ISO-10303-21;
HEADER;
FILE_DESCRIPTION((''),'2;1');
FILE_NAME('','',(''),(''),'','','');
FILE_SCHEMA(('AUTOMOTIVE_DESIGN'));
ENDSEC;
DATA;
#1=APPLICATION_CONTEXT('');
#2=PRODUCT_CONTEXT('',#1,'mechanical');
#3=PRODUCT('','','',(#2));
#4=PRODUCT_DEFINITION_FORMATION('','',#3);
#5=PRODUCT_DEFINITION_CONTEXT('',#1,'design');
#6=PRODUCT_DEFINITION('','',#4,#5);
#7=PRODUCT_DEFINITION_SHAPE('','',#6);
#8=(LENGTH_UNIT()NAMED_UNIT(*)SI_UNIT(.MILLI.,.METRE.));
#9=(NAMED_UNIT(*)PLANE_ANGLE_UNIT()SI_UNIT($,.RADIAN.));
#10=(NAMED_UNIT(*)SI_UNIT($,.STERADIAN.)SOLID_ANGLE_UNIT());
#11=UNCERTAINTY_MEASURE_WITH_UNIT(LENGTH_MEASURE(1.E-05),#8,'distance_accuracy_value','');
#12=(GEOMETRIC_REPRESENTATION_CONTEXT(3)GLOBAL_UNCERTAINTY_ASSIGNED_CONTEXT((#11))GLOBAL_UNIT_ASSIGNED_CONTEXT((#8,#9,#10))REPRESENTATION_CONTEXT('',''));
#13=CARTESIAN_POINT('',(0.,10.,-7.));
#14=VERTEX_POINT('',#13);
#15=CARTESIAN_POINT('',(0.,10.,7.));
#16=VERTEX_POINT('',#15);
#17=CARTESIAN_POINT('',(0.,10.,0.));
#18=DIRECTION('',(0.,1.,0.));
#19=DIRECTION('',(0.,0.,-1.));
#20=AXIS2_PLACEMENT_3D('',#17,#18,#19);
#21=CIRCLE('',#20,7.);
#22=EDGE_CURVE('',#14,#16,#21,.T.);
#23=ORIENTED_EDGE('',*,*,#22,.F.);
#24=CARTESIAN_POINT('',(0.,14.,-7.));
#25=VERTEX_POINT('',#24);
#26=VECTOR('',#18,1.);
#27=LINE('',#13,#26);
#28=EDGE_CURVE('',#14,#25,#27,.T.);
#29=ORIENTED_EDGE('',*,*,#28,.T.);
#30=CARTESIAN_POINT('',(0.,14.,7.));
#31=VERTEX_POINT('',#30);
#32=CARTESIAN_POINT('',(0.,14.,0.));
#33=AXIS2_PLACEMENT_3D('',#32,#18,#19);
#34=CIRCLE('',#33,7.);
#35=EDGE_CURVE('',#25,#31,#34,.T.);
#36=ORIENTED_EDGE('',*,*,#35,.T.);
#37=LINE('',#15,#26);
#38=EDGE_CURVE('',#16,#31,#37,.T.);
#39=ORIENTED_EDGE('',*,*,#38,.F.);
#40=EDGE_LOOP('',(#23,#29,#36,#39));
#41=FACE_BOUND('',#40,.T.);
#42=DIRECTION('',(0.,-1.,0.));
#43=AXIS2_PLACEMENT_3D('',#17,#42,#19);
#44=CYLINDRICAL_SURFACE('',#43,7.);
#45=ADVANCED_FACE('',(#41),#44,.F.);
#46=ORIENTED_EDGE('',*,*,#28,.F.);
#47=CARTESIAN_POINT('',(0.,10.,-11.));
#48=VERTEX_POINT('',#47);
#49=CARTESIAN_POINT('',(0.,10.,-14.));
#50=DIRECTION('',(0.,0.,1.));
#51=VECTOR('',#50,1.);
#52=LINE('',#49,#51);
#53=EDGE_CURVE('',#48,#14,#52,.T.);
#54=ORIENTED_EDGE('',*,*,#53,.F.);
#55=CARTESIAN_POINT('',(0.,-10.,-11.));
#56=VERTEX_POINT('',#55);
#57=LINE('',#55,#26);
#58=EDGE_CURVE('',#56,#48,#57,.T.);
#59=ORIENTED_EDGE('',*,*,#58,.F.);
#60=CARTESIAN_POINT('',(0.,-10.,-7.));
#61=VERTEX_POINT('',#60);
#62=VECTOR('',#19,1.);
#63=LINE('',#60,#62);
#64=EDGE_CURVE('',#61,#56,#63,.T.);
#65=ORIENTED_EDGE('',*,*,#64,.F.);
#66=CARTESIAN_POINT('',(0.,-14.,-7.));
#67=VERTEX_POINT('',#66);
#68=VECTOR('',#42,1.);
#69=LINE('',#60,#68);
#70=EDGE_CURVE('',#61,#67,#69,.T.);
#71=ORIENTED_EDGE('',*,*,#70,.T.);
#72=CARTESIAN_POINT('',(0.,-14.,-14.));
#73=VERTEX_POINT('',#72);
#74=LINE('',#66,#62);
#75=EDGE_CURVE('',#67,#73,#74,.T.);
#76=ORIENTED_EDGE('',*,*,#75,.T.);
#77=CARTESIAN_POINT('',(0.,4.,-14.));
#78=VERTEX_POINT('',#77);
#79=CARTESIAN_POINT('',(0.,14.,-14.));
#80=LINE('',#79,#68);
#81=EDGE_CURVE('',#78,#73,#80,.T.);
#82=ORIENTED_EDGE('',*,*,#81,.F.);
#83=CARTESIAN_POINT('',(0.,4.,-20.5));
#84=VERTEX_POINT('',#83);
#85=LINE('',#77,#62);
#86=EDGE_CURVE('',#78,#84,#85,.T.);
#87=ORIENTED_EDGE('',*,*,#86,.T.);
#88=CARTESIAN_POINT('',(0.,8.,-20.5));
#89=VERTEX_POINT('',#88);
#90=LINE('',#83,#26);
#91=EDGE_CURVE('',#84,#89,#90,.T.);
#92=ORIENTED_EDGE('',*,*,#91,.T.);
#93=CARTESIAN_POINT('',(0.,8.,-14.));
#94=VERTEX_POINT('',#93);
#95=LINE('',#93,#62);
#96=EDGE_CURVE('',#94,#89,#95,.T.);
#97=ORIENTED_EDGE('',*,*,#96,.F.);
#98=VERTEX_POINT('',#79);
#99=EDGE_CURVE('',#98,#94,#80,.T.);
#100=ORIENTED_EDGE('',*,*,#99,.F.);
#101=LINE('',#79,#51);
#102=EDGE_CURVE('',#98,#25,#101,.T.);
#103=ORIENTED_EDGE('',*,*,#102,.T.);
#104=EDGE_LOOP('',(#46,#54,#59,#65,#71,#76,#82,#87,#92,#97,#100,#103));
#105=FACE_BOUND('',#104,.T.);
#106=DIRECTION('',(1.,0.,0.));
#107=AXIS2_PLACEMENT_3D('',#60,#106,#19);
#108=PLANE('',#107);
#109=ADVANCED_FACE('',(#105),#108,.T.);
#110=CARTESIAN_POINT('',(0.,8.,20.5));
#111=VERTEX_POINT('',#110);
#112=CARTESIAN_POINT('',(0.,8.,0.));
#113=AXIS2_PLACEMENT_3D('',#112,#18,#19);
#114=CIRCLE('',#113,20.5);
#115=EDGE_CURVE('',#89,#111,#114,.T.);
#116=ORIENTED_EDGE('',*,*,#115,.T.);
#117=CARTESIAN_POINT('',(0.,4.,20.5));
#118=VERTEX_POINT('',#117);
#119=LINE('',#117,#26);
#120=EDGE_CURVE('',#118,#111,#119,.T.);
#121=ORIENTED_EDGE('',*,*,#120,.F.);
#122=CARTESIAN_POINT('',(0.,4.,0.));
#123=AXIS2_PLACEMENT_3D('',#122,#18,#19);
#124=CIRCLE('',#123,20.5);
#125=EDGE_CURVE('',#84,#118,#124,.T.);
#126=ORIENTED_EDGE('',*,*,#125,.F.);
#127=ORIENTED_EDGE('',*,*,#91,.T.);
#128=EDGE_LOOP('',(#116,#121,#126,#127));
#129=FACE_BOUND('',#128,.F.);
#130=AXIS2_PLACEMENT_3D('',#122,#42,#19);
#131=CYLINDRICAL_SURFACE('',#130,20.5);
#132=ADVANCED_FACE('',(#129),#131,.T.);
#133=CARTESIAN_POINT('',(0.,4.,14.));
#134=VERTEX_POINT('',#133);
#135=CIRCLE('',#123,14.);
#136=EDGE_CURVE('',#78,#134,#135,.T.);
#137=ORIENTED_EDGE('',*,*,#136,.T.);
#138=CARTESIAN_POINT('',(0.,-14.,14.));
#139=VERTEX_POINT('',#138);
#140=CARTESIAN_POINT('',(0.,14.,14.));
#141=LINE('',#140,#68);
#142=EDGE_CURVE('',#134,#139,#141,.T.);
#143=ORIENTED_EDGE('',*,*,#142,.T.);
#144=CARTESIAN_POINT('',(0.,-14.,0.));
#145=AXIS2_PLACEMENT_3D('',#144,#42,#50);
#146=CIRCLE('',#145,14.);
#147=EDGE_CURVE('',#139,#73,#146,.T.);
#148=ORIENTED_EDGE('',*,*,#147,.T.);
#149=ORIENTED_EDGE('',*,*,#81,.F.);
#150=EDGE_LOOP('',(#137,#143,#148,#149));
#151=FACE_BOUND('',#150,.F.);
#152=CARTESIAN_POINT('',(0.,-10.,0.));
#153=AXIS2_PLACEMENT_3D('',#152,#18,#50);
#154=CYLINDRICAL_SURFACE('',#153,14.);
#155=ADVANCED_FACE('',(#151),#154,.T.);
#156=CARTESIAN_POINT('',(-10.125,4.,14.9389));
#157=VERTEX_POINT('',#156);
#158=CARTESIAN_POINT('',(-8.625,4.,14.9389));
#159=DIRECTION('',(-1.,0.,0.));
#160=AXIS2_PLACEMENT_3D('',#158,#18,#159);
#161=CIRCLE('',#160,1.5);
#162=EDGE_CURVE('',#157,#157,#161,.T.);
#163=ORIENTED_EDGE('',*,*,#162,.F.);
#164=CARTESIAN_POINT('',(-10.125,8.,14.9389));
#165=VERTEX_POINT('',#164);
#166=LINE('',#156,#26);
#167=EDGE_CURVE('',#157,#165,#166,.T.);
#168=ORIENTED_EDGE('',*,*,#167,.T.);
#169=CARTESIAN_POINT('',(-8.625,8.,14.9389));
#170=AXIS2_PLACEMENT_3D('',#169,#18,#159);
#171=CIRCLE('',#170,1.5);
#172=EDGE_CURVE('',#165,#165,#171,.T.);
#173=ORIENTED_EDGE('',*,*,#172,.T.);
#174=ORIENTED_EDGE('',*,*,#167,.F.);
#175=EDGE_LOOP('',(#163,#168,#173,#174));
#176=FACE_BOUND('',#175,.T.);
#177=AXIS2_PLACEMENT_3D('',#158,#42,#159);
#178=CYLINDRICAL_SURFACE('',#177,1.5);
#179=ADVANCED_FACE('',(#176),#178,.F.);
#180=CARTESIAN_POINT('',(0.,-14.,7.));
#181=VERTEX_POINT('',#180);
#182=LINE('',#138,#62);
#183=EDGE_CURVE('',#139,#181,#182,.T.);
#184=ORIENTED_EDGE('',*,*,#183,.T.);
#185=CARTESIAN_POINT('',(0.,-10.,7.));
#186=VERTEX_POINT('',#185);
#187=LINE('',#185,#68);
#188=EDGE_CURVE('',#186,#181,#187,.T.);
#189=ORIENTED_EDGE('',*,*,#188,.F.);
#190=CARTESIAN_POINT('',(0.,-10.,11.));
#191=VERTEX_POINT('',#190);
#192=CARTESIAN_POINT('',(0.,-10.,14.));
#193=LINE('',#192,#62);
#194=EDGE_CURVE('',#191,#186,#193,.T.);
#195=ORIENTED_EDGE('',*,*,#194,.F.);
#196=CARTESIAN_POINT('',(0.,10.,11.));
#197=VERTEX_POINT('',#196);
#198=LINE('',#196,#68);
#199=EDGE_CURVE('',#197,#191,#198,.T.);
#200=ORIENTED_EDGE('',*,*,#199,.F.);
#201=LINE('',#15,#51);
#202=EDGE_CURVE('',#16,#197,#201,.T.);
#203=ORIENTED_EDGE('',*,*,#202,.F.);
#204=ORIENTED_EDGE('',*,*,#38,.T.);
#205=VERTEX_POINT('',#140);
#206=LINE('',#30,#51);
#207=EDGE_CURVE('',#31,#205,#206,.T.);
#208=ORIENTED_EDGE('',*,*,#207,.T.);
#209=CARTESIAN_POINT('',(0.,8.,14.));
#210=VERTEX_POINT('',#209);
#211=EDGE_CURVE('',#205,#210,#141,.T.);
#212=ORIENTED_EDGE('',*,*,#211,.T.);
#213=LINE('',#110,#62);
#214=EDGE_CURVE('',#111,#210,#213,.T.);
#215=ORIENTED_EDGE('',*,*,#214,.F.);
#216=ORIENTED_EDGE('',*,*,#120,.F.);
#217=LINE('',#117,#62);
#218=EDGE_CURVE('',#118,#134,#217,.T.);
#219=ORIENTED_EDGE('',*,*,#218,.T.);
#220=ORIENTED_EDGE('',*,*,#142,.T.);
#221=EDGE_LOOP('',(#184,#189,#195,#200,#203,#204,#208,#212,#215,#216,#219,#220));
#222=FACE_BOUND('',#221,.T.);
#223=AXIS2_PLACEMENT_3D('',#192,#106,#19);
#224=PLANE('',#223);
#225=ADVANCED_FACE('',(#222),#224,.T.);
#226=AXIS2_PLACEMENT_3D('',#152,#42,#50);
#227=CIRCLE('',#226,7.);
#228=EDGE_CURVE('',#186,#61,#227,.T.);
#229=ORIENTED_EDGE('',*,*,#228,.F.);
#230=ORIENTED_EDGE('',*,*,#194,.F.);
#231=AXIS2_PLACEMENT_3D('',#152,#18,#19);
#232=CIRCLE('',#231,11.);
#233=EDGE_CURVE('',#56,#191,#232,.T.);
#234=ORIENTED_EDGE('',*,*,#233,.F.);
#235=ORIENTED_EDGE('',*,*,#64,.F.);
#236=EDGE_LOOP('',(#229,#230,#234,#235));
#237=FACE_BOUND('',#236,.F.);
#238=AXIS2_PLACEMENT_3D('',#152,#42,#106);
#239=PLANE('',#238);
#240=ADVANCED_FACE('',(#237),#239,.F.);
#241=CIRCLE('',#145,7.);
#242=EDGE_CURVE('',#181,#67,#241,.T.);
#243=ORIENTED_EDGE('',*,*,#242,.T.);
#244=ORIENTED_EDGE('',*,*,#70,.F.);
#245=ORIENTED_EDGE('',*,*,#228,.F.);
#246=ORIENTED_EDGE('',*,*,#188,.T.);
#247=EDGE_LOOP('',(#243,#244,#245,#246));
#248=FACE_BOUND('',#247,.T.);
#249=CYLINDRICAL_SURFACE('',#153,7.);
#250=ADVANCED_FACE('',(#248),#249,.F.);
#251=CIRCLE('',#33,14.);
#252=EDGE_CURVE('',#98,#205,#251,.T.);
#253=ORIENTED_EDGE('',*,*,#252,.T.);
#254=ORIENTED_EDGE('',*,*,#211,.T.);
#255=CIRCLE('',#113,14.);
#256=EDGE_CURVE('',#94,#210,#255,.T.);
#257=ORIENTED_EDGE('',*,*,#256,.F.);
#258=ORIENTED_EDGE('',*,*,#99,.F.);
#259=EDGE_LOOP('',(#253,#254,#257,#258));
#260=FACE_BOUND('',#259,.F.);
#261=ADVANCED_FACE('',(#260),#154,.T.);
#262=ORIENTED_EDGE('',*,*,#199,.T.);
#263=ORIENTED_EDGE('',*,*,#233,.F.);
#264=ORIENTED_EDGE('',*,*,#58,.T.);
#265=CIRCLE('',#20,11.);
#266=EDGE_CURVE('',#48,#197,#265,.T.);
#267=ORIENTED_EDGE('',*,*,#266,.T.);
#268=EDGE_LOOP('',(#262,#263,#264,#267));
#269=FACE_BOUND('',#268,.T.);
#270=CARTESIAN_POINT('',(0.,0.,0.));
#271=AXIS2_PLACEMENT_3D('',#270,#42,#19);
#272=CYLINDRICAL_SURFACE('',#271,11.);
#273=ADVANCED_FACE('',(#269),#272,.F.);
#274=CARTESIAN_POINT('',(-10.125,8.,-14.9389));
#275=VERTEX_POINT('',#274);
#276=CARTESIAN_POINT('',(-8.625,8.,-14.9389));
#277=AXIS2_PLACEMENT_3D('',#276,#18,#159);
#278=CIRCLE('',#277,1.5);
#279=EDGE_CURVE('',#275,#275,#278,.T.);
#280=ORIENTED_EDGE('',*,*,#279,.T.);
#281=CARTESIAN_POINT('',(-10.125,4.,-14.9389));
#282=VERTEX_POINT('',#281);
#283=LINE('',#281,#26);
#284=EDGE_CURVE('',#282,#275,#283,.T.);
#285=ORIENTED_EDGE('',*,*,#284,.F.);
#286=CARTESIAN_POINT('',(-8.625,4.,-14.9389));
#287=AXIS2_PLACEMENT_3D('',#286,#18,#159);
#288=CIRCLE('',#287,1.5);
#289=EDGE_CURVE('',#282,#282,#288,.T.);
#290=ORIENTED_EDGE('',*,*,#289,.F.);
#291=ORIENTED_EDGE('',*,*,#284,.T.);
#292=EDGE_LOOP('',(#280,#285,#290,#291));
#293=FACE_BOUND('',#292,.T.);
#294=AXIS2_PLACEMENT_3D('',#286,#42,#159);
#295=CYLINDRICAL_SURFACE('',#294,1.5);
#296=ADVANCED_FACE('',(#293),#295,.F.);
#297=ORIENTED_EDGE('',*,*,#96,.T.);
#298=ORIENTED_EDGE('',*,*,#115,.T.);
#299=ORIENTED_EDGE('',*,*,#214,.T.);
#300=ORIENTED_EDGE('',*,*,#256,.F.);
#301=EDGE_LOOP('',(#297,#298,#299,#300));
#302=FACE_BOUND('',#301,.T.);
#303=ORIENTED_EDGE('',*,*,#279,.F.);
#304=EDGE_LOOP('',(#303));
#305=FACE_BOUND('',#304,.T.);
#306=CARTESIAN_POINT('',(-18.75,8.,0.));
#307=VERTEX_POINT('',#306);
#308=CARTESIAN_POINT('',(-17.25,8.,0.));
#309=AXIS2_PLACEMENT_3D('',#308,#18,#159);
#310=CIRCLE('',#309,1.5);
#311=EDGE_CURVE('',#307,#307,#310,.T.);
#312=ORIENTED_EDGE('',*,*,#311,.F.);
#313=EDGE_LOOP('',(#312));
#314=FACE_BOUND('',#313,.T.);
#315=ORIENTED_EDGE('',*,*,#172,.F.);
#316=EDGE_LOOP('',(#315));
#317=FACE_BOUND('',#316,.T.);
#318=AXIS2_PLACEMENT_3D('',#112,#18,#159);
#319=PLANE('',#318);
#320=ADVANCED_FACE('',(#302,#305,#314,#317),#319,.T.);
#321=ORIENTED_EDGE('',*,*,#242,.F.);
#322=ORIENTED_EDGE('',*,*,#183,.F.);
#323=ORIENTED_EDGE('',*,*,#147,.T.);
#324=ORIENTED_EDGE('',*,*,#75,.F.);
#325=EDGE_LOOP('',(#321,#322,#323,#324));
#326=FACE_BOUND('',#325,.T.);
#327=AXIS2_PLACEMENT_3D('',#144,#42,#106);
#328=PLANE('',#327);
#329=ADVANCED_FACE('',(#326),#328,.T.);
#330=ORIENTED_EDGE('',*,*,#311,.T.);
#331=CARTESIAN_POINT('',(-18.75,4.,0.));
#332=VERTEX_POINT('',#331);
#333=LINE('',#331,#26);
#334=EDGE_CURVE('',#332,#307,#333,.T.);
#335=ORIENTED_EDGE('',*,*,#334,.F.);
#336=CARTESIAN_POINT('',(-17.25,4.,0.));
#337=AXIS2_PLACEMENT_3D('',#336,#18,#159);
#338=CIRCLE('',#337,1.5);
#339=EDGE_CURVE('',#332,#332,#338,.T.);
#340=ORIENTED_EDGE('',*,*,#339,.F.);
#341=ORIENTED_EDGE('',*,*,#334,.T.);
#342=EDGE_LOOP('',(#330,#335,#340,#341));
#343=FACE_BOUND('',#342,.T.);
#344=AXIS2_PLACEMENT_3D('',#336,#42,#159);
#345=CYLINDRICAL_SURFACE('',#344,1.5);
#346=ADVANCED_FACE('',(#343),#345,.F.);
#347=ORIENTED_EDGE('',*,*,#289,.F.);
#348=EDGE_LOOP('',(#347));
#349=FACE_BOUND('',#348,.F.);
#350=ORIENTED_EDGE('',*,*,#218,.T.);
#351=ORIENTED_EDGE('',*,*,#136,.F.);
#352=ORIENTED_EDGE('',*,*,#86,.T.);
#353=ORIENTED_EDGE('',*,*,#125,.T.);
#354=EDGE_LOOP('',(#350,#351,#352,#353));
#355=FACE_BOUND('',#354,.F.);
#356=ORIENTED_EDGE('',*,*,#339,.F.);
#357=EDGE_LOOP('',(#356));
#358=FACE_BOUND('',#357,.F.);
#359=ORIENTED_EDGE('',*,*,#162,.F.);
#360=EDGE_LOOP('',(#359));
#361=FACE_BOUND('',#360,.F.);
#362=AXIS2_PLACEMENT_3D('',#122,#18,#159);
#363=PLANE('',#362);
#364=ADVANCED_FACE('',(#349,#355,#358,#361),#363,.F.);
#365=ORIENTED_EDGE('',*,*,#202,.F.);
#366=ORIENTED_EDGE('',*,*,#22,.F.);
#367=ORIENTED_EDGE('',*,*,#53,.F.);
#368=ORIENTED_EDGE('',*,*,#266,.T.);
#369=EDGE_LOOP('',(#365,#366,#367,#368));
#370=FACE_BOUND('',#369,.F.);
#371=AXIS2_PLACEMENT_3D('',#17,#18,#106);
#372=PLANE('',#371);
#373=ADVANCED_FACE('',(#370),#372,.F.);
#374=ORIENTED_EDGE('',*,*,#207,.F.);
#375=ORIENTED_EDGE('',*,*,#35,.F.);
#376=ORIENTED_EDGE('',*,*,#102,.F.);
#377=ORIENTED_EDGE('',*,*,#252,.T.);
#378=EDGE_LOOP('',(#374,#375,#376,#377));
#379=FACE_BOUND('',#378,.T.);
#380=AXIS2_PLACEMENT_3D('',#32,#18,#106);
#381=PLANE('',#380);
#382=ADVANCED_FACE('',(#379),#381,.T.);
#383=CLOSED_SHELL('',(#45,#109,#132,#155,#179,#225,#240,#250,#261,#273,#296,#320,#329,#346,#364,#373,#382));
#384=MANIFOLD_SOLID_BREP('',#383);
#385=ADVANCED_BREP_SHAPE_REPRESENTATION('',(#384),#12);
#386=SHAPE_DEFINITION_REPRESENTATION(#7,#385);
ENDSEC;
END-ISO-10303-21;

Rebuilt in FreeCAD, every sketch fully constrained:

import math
import FreeCAD as App
import Part
import Sketcher

V = App.Vector

doc = App.newDocument("Part")
body = doc.addObject("PartDesign::Body", "Body")

# Sketch on XZ plane
sketch1 = doc.addObject("Sketcher::SketchObject", "Sketch")
body.addObject(sketch1)
sketch1.AttachmentSupport = (doc.XZ_Plane, [""])
sketch1.MapMode = "FlatFace"
sketch1.addGeometry(Part.ArcOfCircle(Part.Circle(V(0, 0, 0), V(0, 0, 1), 11), math.radians(90), math.radians(270)), False)
sketch1.addGeometry(Part.LineSegment(V(0, -11, 0), V(0, -14, 0)), False)
sketch1.addGeometry(Part.ArcOfCircle(Part.Circle(V(0, 0, 0), V(0, 0, 1), 14), math.radians(90), math.radians(270)), False)
sketch1.addGeometry(Part.LineSegment(V(0, 14, 0), V(0, 11, 0)), False)
sketch1.addConstraint(Sketcher.Constraint("Coincident", 0, 2, 1, 1))
sketch1.addConstraint(Sketcher.Constraint("Coincident", 1, 2, 2, 2))
sketch1.addConstraint(Sketcher.Constraint("Coincident", 2, 1, 3, 1))
sketch1.addConstraint(Sketcher.Constraint("Coincident", 3, 2, 0, 1))
sketch1.addConstraint(Sketcher.Constraint("Vertical", 1))
sketch1.addConstraint(Sketcher.Constraint("Vertical", 3))
sketch1.addConstraint(Sketcher.Constraint("Coincident", 0, 3, -1, 1))
sketch1.addConstraint(Sketcher.Constraint("Coincident", 2, 3, -1, 1))
sketch1.addConstraint(Sketcher.Constraint("PointOnObject", 0, 2, -2))
sketch1.addConstraint(Sketcher.Constraint("PointOnObject", 2, 1, -2))
sketch1.addConstraint(Sketcher.Constraint("Radius", 0, 11.0))
sketch1.addConstraint(Sketcher.Constraint("DistanceY", 1, 2, 1, 1, 3.0))
pad1 = doc.addObject("PartDesign::Pad", "Pad")
body.addObject(pad1)
pad1.Profile = sketch1
pad1.Length = 20
pad1.Midplane = True

# Sketch on XZ plane
sketch2 = doc.addObject("Sketcher::SketchObject", "Sketch001")
body.addObject(sketch2)
sketch2.AttachmentSupport = (doc.XZ_Plane, [""])
sketch2.MapMode = "FlatFace"
sketch2.AttachmentOffset = App.Placement(V(0, 0, -10), App.Rotation())
sketch2.addGeometry(Part.LineSegment(V(0, -7, 0), V(0, -14, 0)), False)
sketch2.addGeometry(Part.ArcOfCircle(Part.Circle(V(0, 0, 0), V(0, 0, 1), 14), math.radians(90), math.radians(270)), False)
sketch2.addGeometry(Part.LineSegment(V(0, 14, 0), V(0, 7, 0)), False)
sketch2.addGeometry(Part.ArcOfCircle(Part.Circle(V(0, 0, 0), V(0, 0, 1), 7), math.radians(90), math.radians(270)), False)
sketch2.addConstraint(Sketcher.Constraint("Coincident", 0, 2, 1, 2))
sketch2.addConstraint(Sketcher.Constraint("Coincident", 1, 1, 2, 1))
sketch2.addConstraint(Sketcher.Constraint("Coincident", 2, 2, 3, 1))
sketch2.addConstraint(Sketcher.Constraint("Coincident", 3, 2, 0, 1))
sketch2.addConstraint(Sketcher.Constraint("Vertical", 0))
sketch2.addConstraint(Sketcher.Constraint("Vertical", 2))
sketch2.addConstraint(Sketcher.Constraint("Coincident", 1, 3, -1, 1))
sketch2.addConstraint(Sketcher.Constraint("Coincident", 3, 3, -1, 1))
sketch2.addConstraint(Sketcher.Constraint("PointOnObject", 0, 2, -2))
sketch2.addConstraint(Sketcher.Constraint("PointOnObject", 1, 1, -2))
sketch2.addConstraint(Sketcher.Constraint("Radius", 1, 14.0))
sketch2.addConstraint(Sketcher.Constraint("Radius", 3, 7.0))
pad2 = doc.addObject("PartDesign::Pad", "Pad001")
body.addObject(pad2)
pad2.Profile = sketch2
pad2.Length = 4
pad2.Reversed = True

# Sketch on XZ plane
sketch3 = doc.addObject("Sketcher::SketchObject", "Sketch002")
body.addObject(sketch3)
sketch3.AttachmentSupport = (doc.XZ_Plane, [""])
sketch3.MapMode = "FlatFace"
sketch3.AttachmentOffset = App.Placement(V(0, 0, 10), App.Rotation())
sketch3.addGeometry(Part.LineSegment(V(0, 7, 0), V(0, 14, 0)), False)
sketch3.addGeometry(Part.ArcOfCircle(Part.Circle(V(0, 0, 0), V(0, 0, 1), 14), math.radians(90), math.radians(270)), False)
sketch3.addGeometry(Part.LineSegment(V(0, -14, 0), V(0, -7, 0)), False)
sketch3.addGeometry(Part.ArcOfCircle(Part.Circle(V(0, 0, 0), V(0, 0, 1), 7), math.radians(90), math.radians(270)), False)
sketch3.addConstraint(Sketcher.Constraint("Coincident", 0, 2, 1, 1))
sketch3.addConstraint(Sketcher.Constraint("Coincident", 1, 2, 2, 1))
sketch3.addConstraint(Sketcher.Constraint("Coincident", 2, 2, 3, 2))
sketch3.addConstraint(Sketcher.Constraint("Coincident", 3, 1, 0, 1))
sketch3.addConstraint(Sketcher.Constraint("Vertical", 0))
sketch3.addConstraint(Sketcher.Constraint("Vertical", 2))
sketch3.addConstraint(Sketcher.Constraint("Coincident", 1, 3, -1, 1))
sketch3.addConstraint(Sketcher.Constraint("Coincident", 3, 3, -1, 1))
sketch3.addConstraint(Sketcher.Constraint("PointOnObject", 0, 2, -2))
sketch3.addConstraint(Sketcher.Constraint("PointOnObject", 1, 2, -2))
sketch3.addConstraint(Sketcher.Constraint("Radius", 1, 14.0))
sketch3.addConstraint(Sketcher.Constraint("Radius", 3, 7.0))
pad3 = doc.addObject("PartDesign::Pad", "Pad002")
body.addObject(pad3)
pad3.Profile = sketch3
pad3.Length = 4

# Sketch on XZ plane
sketch4 = doc.addObject("Sketcher::SketchObject", "Sketch003")
body.addObject(sketch4)
sketch4.AttachmentSupport = (doc.XZ_Plane, [""])
sketch4.MapMode = "FlatFace"
sketch4.AttachmentOffset = App.Placement(V(0, 0, -4), App.Rotation())
sketch4.addGeometry(Part.ArcOfCircle(Part.Circle(V(0, 0, 0), V(0, 0, 1), 14), math.radians(90), math.radians(270)), False)
sketch4.addGeometry(Part.LineSegment(V(0, -14, 0), V(0, -20.5, 0)), False)
sketch4.addGeometry(Part.ArcOfCircle(Part.Circle(V(0, 0, 0), V(0, 0, 1), 20.5), math.radians(90), math.radians(270)), False)
sketch4.addGeometry(Part.LineSegment(V(0, 20.5, 0), V(0, 14, 0)), False)
sketch4.addGeometry(Part.Circle(V(-8.625, -14.9389, 0), V(0, 0, 1), 1.5), False)
sketch4.addGeometry(Part.Circle(V(-8.625, 14.9389, 0), V(0, 0, 1), 1.5), False)
sketch4.addGeometry(Part.Circle(V(-17.25, 0, 0), V(0, 0, 1), 1.5), False)
sketch4.addConstraint(Sketcher.Constraint("Coincident", 0, 2, 1, 1))
sketch4.addConstraint(Sketcher.Constraint("Coincident", 1, 2, 2, 2))
sketch4.addConstraint(Sketcher.Constraint("Coincident", 2, 1, 3, 1))
sketch4.addConstraint(Sketcher.Constraint("Coincident", 3, 2, 0, 1))
sketch4.addConstraint(Sketcher.Constraint("Vertical", 1))
sketch4.addConstraint(Sketcher.Constraint("Vertical", 3))
sketch4.addConstraint(Sketcher.Constraint("Coincident", 0, 3, -1, 1))
sketch4.addConstraint(Sketcher.Constraint("Coincident", 2, 3, -1, 1))
sketch4.addConstraint(Sketcher.Constraint("Equal", 4, 5))
sketch4.addConstraint(Sketcher.Constraint("Equal", 5, 6))
sketch4.addConstraint(Sketcher.Constraint("Symmetric", 4, 3, 5, 3, -1))
sketch4.addConstraint(Sketcher.Constraint("PointOnObject", 6, 3, -1))
sketch4.addConstraint(Sketcher.Constraint("PointOnObject", 0, 2, -2))
sketch4.addConstraint(Sketcher.Constraint("PointOnObject", 2, 1, -2))
sketch4.addConstraint(Sketcher.Constraint("Diameter", 4, 3.0))
sketch4.addConstraint(Sketcher.Constraint("DistanceY", 1, 2, 1, 1, 6.5))
sketch4.addConstraint(Sketcher.Constraint("Radius", 0, 14.0))
sketch4.addConstraint(Sketcher.Constraint("DistanceX", 6, 3, -1, 1, 17.25))
sketch4.addConstraint(Sketcher.Constraint("DistanceX", 4, 3, -1, 1, 8.625))
sketch4.addConstraint(Sketcher.Constraint("DistanceY", 4, 3, -1, 1, 14.939))
pad4 = doc.addObject("PartDesign::Pad", "Pad003")
body.addObject(pad4)
pad4.Profile = sketch4
pad4.Length = 4
pad4.Reversed = True

doc.recompute()
